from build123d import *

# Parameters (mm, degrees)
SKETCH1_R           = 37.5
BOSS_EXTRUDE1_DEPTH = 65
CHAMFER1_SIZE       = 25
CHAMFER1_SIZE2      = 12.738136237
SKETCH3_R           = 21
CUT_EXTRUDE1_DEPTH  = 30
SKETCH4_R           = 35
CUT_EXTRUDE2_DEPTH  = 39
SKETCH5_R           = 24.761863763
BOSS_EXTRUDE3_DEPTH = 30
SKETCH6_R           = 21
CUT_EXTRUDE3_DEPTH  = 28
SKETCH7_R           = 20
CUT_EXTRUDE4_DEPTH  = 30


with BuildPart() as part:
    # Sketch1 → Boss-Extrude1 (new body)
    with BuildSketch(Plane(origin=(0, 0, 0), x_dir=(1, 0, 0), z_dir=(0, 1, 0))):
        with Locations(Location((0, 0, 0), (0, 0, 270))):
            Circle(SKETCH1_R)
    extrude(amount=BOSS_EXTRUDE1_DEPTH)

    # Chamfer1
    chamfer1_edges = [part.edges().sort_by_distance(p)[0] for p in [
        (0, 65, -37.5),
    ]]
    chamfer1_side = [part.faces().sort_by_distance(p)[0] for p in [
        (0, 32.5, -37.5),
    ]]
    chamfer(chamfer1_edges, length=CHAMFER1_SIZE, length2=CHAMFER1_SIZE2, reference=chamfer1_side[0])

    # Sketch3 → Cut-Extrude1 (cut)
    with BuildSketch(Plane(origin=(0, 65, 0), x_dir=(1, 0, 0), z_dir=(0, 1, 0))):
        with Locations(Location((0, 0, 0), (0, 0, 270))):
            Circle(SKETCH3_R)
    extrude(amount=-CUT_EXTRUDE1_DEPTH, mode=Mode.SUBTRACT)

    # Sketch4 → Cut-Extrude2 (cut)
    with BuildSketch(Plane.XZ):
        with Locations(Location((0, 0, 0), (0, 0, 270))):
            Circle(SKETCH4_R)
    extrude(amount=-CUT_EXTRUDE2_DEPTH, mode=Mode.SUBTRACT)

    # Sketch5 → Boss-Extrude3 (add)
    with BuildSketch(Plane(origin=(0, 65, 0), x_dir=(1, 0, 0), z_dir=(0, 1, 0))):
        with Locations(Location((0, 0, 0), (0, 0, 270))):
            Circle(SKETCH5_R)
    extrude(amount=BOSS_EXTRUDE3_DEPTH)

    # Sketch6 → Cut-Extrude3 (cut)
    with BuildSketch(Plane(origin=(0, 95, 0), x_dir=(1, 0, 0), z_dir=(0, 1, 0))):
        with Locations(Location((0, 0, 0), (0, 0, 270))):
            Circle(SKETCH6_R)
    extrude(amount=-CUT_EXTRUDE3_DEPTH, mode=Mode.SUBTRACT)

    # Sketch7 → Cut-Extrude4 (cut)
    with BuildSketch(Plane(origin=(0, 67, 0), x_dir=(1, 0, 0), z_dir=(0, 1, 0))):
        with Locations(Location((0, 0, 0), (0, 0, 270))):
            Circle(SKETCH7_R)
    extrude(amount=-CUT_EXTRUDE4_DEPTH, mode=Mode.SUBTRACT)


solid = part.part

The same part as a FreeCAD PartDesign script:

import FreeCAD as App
import Part
import Sketcher
from FreeCAD import Vector


def edges_at(feature, points):
    """Names of the edges that pass closest to the given points."""
    edges = feature.Shape.Edges
    near = lambda p: min(range(len(edges)), key=lambda i: edges[i].distToShape(Part.Vertex(*p))[0])
    return sorted({f"Edge{near(p) + 1}" for p in points})

doc = App.newDocument("Part")
body = doc.addObject("PartDesign::Body", "Body")

# Sketch on XZ plane
sketch1 = body.newObject("Sketcher::SketchObject", "Sketch")
sketch1.AttachmentSupport = (doc.getObject("XZ_Plane"), [""])
sketch1.MapMode = "FlatFace"
sketch1.addGeometry(Part.Circle(Vector(0, 0, 0), Vector(0, 0, 1), 37.5), False)
sketch1.addConstraint([
    Sketcher.Constraint("Coincident", 0, 3, -1, 1),
    Sketcher.Constraint("Diameter", 0, 75.0),
])
pad1 = body.newObject("PartDesign::Pad", "Pad")
pad1.Profile = sketch1
pad1.Length = 65
pad1.Reversed = True
doc.recompute()

chamfer = body.newObject("PartDesign::Chamfer", "Chamfer")
chamfer.Base = (pad1, edges_at(pad1, [(0, 65, -37.5)]))
chamfer.ChamferType = "Two distances"
chamfer.Size = 25
chamfer.Size2 = 12.738136

# Sketch on XZ plane
sketch2 = body.newObject("Sketcher::SketchObject", "Sketch001")
sketch2.AttachmentSupport = (doc.getObject("XZ_Plane"), [""])
sketch2.MapMode = "FlatFace"
sketch2.AttachmentOffset = App.Placement(Vector(0, 0, -65), App.Rotation())
sketch2.addGeometry(Part.Circle(Vector(0, 0, 0), Vector(0, 0, 1), 21), False)
sketch2.addConstraint([
    Sketcher.Constraint("Coincident", 0, 3, -1, 1),
    Sketcher.Constraint("Diameter", 0, 42.0),
])
pocket1 = body.newObject("PartDesign::Pocket", "Pocket")
pocket1.Profile = sketch2
pocket1.Length = 30
pocket1.Reversed = True

# Sketch on XZ plane
sketch3 = body.newObject("Sketcher::SketchObject", "Sketch002")
sketch3.AttachmentSupport = (doc.getObject("XZ_Plane"), [""])
sketch3.MapMode = "FlatFace"
sketch3.addGeometry(Part.Circle(Vector(0, 0, 0), Vector(0, 0, 1), 35), False)
sketch3.addConstraint([
    Sketcher.Constraint("Coincident", 0, 3, -1, 1),
    Sketcher.Constraint("Diameter", 0, 70.0),
])
pocket2 = body.newObject("PartDesign::Pocket", "Pocket001")
pocket2.Profile = sketch3
pocket2.Length = 39

# Sketch on XZ plane
sketch4 = body.newObject("Sketcher::SketchObject", "Sketch003")
sketch4.AttachmentSupport = (doc.getObject("XZ_Plane"), [""])
sketch4.MapMode = "FlatFace"
sketch4.AttachmentOffset = App.Placement(Vector(0, 0, -65), App.Rotation())
sketch4.addGeometry(Part.Circle(Vector(0, 0, 0), Vector(0, 0, 1), 24.761864), False)
sketch4.addConstraint([
    Sketcher.Constraint("Coincident", 0, 3, -1, 1),
    Sketcher.Constraint("Diameter", 0, 49.523728),
])
pad2 = body.newObject("PartDesign::Pad", "Pad001")
pad2.Profile = sketch4
pad2.Length = 30
pad2.Reversed = True

# Sketch on XZ plane
sketch5 = body.newObject("Sketcher::SketchObject", "Sketch004")
sketch5.AttachmentSupport = (doc.getObject("XZ_Plane"), [""])
sketch5.MapMode = "FlatFace"
sketch5.AttachmentOffset = App.Placement(Vector(0, 0, -95), App.Rotation())
sketch5.addGeometry(Part.Circle(Vector(0, 0, 0), Vector(0, 0, 1), 21), False)
sketch5.addConstraint([
    Sketcher.Constraint("Coincident", 0, 3, -1, 1),
    Sketcher.Constraint("Diameter", 0, 42.0),
])
pocket3 = body.newObject("PartDesign::Pocket", "Pocket002")
pocket3.Profile = sketch5
pocket3.Length = 28
pocket3.Reversed = True

# Sketch on XZ plane
sketch6 = body.newObject("Sketcher::SketchObject", "Sketch005")
sketch6.AttachmentSupport = (doc.getObject("XZ_Plane"), [""])
sketch6.MapMode = "FlatFace"
sketch6.AttachmentOffset = App.Placement(Vector(0, 0, -67), App.Rotation())
sketch6.addGeometry(Part.Circle(Vector(0, 0, 0), Vector(0, 0, 1), 20), False)
sketch6.addConstraint([
    Sketcher.Constraint("Coincident", 0, 3, -1, 1),
    Sketcher.Constraint("Diameter", 0, 40.0),
])
pocket4 = body.newObject("PartDesign::Pocket", "Pocket003")
pocket4.Profile = sketch6
pocket4.Length = 30
pocket4.Reversed = True

doc.recompute()
